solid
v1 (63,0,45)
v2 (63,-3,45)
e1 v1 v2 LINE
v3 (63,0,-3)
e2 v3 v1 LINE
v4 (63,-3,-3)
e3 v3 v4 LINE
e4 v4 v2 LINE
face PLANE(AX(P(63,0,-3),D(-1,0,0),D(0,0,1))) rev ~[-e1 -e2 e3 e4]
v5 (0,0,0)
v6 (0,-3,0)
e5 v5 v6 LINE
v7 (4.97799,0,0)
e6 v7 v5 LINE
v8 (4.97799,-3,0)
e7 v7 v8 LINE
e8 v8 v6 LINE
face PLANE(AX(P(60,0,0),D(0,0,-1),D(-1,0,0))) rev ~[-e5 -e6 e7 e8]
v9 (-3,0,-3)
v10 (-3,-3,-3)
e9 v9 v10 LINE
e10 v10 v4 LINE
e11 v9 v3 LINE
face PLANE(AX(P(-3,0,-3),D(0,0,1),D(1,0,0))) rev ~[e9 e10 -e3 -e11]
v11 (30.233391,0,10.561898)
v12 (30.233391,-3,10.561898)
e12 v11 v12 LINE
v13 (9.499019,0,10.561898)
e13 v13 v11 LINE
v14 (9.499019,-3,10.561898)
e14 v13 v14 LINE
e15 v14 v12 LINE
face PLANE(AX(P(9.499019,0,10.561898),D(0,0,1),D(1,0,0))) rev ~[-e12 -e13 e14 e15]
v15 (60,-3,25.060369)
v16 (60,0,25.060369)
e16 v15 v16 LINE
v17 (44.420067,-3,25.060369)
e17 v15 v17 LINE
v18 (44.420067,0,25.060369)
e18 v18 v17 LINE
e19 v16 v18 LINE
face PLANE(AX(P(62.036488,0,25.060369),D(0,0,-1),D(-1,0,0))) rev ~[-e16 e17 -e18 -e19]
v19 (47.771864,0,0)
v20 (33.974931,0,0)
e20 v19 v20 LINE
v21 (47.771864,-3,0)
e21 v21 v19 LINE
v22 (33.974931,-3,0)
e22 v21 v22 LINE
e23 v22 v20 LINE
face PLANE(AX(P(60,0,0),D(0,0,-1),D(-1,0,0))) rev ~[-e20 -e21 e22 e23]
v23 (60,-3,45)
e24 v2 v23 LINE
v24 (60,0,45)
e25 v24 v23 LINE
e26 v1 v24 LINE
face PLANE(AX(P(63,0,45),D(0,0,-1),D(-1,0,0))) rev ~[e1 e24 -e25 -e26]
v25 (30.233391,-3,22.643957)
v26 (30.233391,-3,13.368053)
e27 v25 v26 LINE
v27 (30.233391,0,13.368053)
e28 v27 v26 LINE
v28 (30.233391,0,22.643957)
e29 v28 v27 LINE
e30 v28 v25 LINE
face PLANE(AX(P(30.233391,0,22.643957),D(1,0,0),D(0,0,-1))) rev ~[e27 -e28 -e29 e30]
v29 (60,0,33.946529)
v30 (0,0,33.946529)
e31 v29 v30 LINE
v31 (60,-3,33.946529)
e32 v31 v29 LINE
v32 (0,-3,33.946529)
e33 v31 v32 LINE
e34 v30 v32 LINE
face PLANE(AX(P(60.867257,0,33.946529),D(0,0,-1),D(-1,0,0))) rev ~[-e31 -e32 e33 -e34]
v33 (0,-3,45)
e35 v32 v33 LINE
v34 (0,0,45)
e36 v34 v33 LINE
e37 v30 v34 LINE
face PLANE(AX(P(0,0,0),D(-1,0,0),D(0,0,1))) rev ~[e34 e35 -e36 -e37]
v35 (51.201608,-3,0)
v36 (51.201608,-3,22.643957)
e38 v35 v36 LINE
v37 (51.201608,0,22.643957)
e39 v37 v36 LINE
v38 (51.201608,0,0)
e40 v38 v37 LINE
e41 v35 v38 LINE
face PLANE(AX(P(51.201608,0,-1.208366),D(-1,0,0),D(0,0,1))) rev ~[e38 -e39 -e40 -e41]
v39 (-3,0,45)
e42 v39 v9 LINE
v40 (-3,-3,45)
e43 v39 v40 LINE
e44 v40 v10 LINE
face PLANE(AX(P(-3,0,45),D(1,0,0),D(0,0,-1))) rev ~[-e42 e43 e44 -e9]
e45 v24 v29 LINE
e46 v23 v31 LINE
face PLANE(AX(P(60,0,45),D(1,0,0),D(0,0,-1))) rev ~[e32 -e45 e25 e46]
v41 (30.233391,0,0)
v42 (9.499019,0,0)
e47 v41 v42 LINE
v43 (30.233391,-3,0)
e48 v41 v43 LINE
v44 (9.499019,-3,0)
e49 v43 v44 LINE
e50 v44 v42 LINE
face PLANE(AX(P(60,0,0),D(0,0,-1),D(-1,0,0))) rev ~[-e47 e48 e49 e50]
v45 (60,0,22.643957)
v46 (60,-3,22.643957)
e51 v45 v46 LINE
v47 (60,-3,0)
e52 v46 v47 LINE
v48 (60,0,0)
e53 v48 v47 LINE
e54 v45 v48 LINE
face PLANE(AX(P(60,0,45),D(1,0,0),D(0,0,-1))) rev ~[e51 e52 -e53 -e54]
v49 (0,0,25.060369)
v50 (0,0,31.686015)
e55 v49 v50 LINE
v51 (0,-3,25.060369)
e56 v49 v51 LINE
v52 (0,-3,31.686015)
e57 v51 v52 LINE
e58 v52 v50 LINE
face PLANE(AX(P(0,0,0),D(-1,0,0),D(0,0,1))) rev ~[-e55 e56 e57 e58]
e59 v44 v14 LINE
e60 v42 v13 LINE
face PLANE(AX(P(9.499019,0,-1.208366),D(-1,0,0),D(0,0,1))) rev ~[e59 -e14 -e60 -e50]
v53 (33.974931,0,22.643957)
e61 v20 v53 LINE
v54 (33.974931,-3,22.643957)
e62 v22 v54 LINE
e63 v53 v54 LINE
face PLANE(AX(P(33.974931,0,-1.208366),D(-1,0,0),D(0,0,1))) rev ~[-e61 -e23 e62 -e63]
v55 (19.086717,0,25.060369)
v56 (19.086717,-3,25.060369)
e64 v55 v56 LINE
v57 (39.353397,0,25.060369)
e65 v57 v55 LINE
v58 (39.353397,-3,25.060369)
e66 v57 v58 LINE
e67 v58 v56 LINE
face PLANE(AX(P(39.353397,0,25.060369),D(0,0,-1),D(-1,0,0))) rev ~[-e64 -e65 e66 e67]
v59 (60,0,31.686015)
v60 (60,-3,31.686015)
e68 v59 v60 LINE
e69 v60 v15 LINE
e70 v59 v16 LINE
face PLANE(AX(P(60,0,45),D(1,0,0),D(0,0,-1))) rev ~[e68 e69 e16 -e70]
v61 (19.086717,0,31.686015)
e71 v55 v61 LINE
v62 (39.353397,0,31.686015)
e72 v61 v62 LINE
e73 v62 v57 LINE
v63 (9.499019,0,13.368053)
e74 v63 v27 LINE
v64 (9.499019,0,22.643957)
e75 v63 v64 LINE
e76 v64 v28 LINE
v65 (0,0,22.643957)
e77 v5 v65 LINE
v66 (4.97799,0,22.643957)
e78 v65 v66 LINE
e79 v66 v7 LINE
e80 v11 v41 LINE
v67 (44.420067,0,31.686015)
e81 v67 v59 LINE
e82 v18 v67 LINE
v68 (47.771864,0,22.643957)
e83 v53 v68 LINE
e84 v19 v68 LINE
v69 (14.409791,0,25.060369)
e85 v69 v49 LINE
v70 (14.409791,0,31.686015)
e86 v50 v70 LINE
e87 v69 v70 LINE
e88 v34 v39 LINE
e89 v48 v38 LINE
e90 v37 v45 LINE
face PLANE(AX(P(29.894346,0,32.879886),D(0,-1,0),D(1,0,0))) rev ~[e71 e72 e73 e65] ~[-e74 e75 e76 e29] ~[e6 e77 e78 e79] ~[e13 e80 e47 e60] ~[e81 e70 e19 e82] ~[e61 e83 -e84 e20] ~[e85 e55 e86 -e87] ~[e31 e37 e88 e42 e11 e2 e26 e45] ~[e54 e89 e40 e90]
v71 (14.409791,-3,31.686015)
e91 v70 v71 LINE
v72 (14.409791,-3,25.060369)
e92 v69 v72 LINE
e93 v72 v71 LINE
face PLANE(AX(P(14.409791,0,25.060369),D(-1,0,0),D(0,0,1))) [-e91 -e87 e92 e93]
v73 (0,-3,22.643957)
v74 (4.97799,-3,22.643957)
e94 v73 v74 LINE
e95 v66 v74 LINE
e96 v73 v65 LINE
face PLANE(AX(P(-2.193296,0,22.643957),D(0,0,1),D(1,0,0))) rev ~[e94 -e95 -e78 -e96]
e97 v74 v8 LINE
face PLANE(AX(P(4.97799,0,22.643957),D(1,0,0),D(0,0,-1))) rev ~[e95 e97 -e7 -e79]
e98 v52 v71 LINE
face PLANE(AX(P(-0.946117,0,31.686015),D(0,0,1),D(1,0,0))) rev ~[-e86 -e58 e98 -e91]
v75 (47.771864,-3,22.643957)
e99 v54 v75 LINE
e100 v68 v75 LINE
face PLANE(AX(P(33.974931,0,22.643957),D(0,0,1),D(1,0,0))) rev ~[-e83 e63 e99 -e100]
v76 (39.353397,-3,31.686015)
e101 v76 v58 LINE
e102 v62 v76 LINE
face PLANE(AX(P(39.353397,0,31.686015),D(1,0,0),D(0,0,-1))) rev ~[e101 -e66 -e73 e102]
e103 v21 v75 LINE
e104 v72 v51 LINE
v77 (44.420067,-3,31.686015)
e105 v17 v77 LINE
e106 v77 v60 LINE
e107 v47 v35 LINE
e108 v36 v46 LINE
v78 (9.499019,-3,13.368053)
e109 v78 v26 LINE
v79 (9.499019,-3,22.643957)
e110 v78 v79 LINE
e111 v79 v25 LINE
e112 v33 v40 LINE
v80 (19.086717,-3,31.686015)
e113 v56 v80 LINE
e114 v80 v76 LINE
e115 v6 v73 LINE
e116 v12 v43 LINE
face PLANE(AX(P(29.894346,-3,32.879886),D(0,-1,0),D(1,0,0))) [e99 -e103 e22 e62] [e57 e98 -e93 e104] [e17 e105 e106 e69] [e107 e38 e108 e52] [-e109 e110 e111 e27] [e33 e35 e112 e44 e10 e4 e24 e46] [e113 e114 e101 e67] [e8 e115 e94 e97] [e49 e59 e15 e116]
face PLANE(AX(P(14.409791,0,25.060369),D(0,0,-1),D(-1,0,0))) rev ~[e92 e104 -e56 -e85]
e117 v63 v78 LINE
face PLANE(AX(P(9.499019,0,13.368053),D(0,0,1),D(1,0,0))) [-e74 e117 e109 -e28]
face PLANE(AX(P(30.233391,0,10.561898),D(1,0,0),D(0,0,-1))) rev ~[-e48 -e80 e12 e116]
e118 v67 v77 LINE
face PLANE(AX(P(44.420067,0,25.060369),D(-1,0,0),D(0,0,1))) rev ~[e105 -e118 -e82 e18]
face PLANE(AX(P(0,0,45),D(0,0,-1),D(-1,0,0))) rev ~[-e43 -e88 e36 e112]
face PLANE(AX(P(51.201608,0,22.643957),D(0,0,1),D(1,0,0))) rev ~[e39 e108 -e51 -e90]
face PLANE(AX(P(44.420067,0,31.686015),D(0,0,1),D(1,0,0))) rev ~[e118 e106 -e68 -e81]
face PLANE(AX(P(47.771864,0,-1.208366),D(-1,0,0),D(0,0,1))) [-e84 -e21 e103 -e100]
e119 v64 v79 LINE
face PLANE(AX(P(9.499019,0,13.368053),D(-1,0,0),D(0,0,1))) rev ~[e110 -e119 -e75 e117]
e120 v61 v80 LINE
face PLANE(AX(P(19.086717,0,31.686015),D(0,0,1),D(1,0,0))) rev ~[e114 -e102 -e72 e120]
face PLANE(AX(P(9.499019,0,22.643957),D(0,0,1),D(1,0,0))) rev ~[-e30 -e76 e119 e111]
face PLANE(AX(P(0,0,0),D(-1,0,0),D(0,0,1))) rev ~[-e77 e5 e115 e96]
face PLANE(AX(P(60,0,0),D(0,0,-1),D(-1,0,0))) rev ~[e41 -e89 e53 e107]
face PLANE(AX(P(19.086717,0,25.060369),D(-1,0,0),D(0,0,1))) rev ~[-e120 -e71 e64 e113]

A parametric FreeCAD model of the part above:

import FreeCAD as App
import Part
import Sketcher
Q = App.Units.Quantity

doc = App.newDocument("Part")
body = doc.addObject("PartDesign::Body", "Body")

# Sketch on XZ plane
sketch1 = body.newObject("Sketcher::SketchObject", "Sketch")
sketch1.AttachmentSupport = (doc.getObject("XZ_Plane"), [""])
sketch1.MapMode = "FlatFace"
sketch1.addGeometry([
    Part.LineSegment(App.Vector(60, 0, 0), App.Vector(0, 0, 0)),  # 0
    Part.LineSegment(App.Vector(0, 0, 0), App.Vector(0, 45, 0)),  # 1
    Part.LineSegment(App.Vector(0, 45, 0), App.Vector(-3, 45, 0)),  # 2
    Part.LineSegment(App.Vector(-3, 45, 0), App.Vector(-3, -3, 0)),  # 3
    Part.LineSegment(App.Vector(-3, -3, 0), App.Vector(63, -3, 0)),  # 4
    Part.LineSegment(App.Vector(63, -3, 0), App.Vector(63, 45, 0)),  # 5
    Part.LineSegment(App.Vector(63, 45, 0), App.Vector(60, 45, 0)),  # 6
    Part.LineSegment(App.Vector(60, 45, 0), App.Vector(60, 0, 0)),  # 7
], False)
sketch1.addConstraint([
    Sketcher.Constraint("Coincident", 0, 2, 1, 1),
    Sketcher.Constraint("Coincident", 1, 2, 2, 1),
    Sketcher.Constraint("Coincident", 2, 2, 3, 1),
    Sketcher.Constraint("Coincident", 3, 2, 4, 1),
    Sketcher.Constraint("Coincident", 4, 2, 5, 1),
    Sketcher.Constraint("Coincident", 5, 2, 6, 1),
    Sketcher.Constraint("Coincident", 6, 2, 7, 1),
    Sketcher.Constraint("Coincident", 7, 2, 0, 1),
    Sketcher.Constraint("Horizontal", 0),
    Sketcher.Constraint("Vertical", 1),
    Sketcher.Constraint("Horizontal", 2),
    Sketcher.Constraint("Vertical", 3),
    Sketcher.Constraint("Horizontal", 4),
    Sketcher.Constraint("Vertical", 5),
    Sketcher.Constraint("Horizontal", 6),
    Sketcher.Constraint("Vertical", 7),
    Sketcher.Constraint("Coincident", 0, 2, -1, 1),
    Sketcher.Constraint("Horizontal", 2, 2, 5, 2),
    Sketcher.Constraint("Equal", 2, 6),
    Sketcher.Constraint("DistanceX", 0, 2, 0, 1, Q("60 mm")),
    Sketcher.Constraint("DistanceX", 2, 2, 2, 1, Q("3 mm")),
    Sketcher.Constraint("DistanceY", 1, 1, 1, 2, Q("45 mm")),
    Sketcher.Constraint("DistanceY", 3, 2, 3, 1, Q("48 mm")),
])
pad1 = body.newObject("PartDesign::Pad", "Pad")
pad1.Profile = sketch1
pad1.Length = 60

# Sketch on XZ plane
sketch2 = body.newObject("Sketcher::SketchObject", "Sketch001")
sketch2.AttachmentSupport = (doc.getObject("XZ_Plane"), [""])
sketch2.MapMode = "FlatFace"
sketch2.addGeometry([
    Part.LineSegment(App.Vector(9.499019, 10.561898, 0), App.Vector(30.233391, 10.561898, 0)),  # 0
    Part.LineSegment(App.Vector(30.233391, 10.561898, 0), App.Vector(30.233391, -1.208366, 0)),  # 1
    Part.LineSegment(App.Vector(30.233391, -1.208366, 0), App.Vector(33.974931, -1.208366, 0)),  # 2
    Part.LineSegment(App.Vector(33.974931, -1.208366, 0), App.Vector(33.974931, 22.643957, 0)),  # 3
    Part.LineSegment(App.Vector(33.974931, 22.643957, 0), App.Vector(47.771864, 22.643957, 0)),  # 4
    Part.LineSegment(App.Vector(47.771864, 22.643957, 0), App.Vector(47.771864, -1.208366, 0)),  # 5
    Part.LineSegment(App.Vector(47.771864, -1.208366, 0), App.Vector(51.201608, -1.208366, 0)),  # 6
    Part.LineSegment(App.Vector(51.201608, -1.208366, 0), App.Vector(51.201608, 22.643957, 0)),  # 7
    Part.LineSegment(App.Vector(51.201608, 22.643957, 0), App.Vector(62.036488, 22.643957, 0)),  # 8
    Part.LineSegment(App.Vector(62.036488, 22.643957, 0), App.Vector(62.036488, 25.060369, 0)),  # 9
    Part.LineSegment(App.Vector(62.036488, 25.060369, 0), App.Vector(44.420067, 25.060369, 0)),  # 10
    Part.LineSegment(App.Vector(44.420067, 25.060369, 0), App.Vector(44.420067, 31.686015, 0)),  # 11
    Part.LineSegment(App.Vector(44.420067, 31.686015, 0), App.Vector(60.867257, 31.686015, 0)),  # 12
    Part.LineSegment(App.Vector(60.867257, 31.686015, 0), App.Vector(60.867257, 33.946529, 0)),  # 13
    Part.LineSegment(App.Vector(60.867257, 33.946529, 0), App.Vector(-0.946117, 33.946529, 0)),  # 14
    Part.LineSegment(App.Vector(-0.946117, 33.946529, 0), App.Vector(-0.946117, 31.686015, 0)),  # 15
    Part.LineSegment(App.Vector(-0.946117, 31.686015, 0), App.Vector(14.409791, 31.686015, 0)),  # 16
    Part.LineSegment(App.Vector(14.409791, 31.686015, 0), App.Vector(14.409791, 25.060369, 0)),  # 17
    Part.LineSegment(App.Vector(14.409791, 25.060369, 0), App.Vector(-2.193296, 25.060369, 0)),  # 18
    Part.LineSegment(App.Vector(-2.193296, 25.060369, 0), App.Vector(-2.193296, 22.643957, 0)),  # 19
    Part.LineSegment(App.Vector(-2.193296, 22.643957, 0), App.Vector(4.97799, 22.643957, 0)),  # 20
    Part.LineSegment(App.Vector(4.97799, 22.643957, 0), App.Vector(4.97799, -1.208366, 0)),  # 21
    Part.LineSegment(App.Vector(4.97799, -1.208366, 0), App.Vector(9.499019, -1.208366, 0)),  # 22
    Part.LineSegment(App.Vector(9.499019, -1.208366, 0), App.Vector(9.499019, 10.561898, 0)),  # 23
    Part.LineSegment(App.Vector(30.233391, 22.643957, 0), App.Vector(30.233391, 13.368053, 0)),  # 24
    Part.LineSegment(App.Vector(30.233391, 13.368053, 0), App.Vector(9.499019, 13.368053, 0)),  # 25
    Part.LineSegment(App.Vector(9.499019, 13.368053, 0), App.Vector(9.499019, 22.643957, 0)),  # 26
    Part.LineSegment(App.Vector(9.499019, 22.643957, 0), App.Vector(30.233391, 22.643957, 0)),  # 27
    Part.LineSegment(App.Vector(39.353397, 25.060369, 0), App.Vector(19.086717, 25.060369, 0)),  # 28
    Part.LineSegment(App.Vector(19.086717, 25.060369, 0), App.Vector(19.086717, 31.686015, 0)),  # 29
    Part.LineSegment(App.Vector(19.086717, 31.686015, 0), App.Vector(39.353397, 31.686015, 0)),  # 30
    Part.LineSegment(App.Vector(39.353397, 31.686015, 0), App.Vector(39.353397, 25.060369, 0)),  # 31
], False)
sketch2.addConstraint([
    Sketcher.Constraint("Coincident", 0, 2, 1, 1),
    Sketcher.Constraint("Coincident", 1, 2, 2, 1),
    Sketcher.Constraint("Coincident", 2, 2, 3, 1),
    Sketcher.Constraint("Coincident", 3, 2, 4, 1),
    Sketcher.Constraint("Coincident", 4, 2, 5, 1),
    Sketcher.Constraint("Coincident", 5, 2, 6, 1),
    Sketcher.Constraint("Coincident", 6, 2, 7, 1),
    Sketcher.Constraint("Coincident", 7, 2, 8, 1),
    Sketcher.Constraint("Coincident", 8, 2, 9, 1),
    Sketcher.Constraint("Coincident", 9, 2, 10, 1),
    Sketcher.Constraint("Coincident", 10, 2, 11, 1),
    Sketcher.Constraint("Coincident", 11, 2, 12, 1),
    Sketcher.Constraint("Coincident", 12, 2, 13, 1),
    Sketcher.Constraint("Coincident", 13, 2, 14, 1),
    Sketcher.Constraint("Coincident", 14, 2, 15, 1),
    Sketcher.Constraint("Coincident", 15, 2, 16, 1),
    Sketcher.Constraint("Coincident", 16, 2, 17, 1),
    Sketcher.Constraint("Coincident", 17, 2, 18, 1),
    Sketcher.Constraint("Coincident", 18, 2, 19, 1),
    Sketcher.Constraint("Coincident", 19, 2, 20, 1),
    Sketcher.Constraint("Coincident", 20, 2, 21, 1),
    Sketcher.Constraint("Coincident", 21, 2, 22, 1),
    Sketcher.Constraint("Coincident", 22, 2, 23, 1),
    Sketcher.Constraint("Coincident", 23, 2, 0, 1),
    Sketcher.Constraint("Coincident", 24, 2, 25, 1),
    Sketcher.Constraint("Coincident", 25, 2, 26, 1),
    Sketcher.Constraint("Coincident", 26, 2, 27, 1),
    Sketcher.Constraint("Coincident", 27, 2, 24, 1),
    Sketcher.Constraint("Coincident", 28, 2, 29, 1),
    Sketcher.Constraint("Coincident", 29, 2, 30, 1),
    Sketcher.Constraint("Coincident", 30, 2, 31, 1),
    Sketcher.Constraint("Coincident", 31, 2, 28, 1),
    Sketcher.Constraint("Horizontal", 0),
    Sketcher.Constraint("Vertical", 1),
    Sketcher.Constraint("Horizontal", 2),
    Sketcher.Constraint("Vertical", 3),
    Sketcher.Constraint("Horizontal", 4),
    Sketcher.Constraint("Vertical", 5),
    Sketcher.Constraint("Horizontal", 6),
    Sketcher.Constraint("Vertical", 7),
    Sketcher.Constraint("Horizontal", 8),
    Sketcher.Constraint("Vertical", 9),
    Sketcher.Constraint("Horizontal", 10),
    Sketcher.Constraint("Vertical", 11),
    Sketcher.Constraint("Horizontal", 12),
    Sketcher.Constraint("Vertical", 13),
    Sketcher.Constraint("Horizontal", 14),
    Sketcher.Constraint("Vertical", 15),
    Sketcher.Constraint("Horizontal", 16),
    Sketcher.Constraint("Vertical", 17),
    Sketcher.Constraint("Horizontal", 18),
    Sketcher.Constraint("Vertical", 19),
    Sketcher.Constraint("Horizontal", 20),
    Sketcher.Constraint("Vertical", 21),
    Sketcher.Constraint("Horizontal", 22),
    Sketcher.Constraint("Vertical", 23),
    Sketcher.Constraint("Vertical", 24),
    Sketcher.Constraint("Horizontal", 25),
    Sketcher.Constraint("Vertical", 26),
    Sketcher.Constraint("Horizontal", 27),
    Sketcher.Constraint("Horizontal", 28),
    Sketcher.Constraint("Vertical", 29),
    Sketcher.Constraint("Horizontal", 30),
    Sketcher.Constraint("Vertical", 31),
    Sketcher.Constraint("Horizontal", 2, 2, 5, 2),
    Sketcher.Constraint("Horizontal", 4, 2, 7, 2),
    Sketcher.Constraint("Horizontal", 12, 2, 15, 2),
    Sketcher.Constraint("Horizontal", 10, 2, 17, 2),
    Sketcher.Constraint("Horizontal", 8, 2, 19, 2),
    Sketcher.Constraint("Horizontal", 6, 2, 21, 2),
    Sketcher.Constraint("Horizontal", 20, 2, 26, 2),
    Sketcher.Constraint("Horizontal", 18, 2, 28, 2),
    Sketcher.Constraint("Horizontal", 16, 2, 29, 2),
    Sketcher.Constraint("Vertical", 1, 2, 24, 2),
    Sketcher.Constraint("Vertical", 23, 2, 25, 2),
    Sketcher.Constraint("DistanceX", 0, 1, 0, 2, Q("20.734372 mm")),
    Sketcher.Constraint("DistanceX", 2, 1, 2, 2, Q("3.74154 mm")),
    Sketcher.Constraint("DistanceX", 8, 1, 8, 2, Q("10.83488 mm")),
    Sketcher.Constraint("DistanceX", 10, 2, 10, 1, Q("17.616421 mm")),
    Sketcher.Constraint("DistanceX", 12, 1, 12, 2, Q("16.44719 mm")),
    Sketcher.Constraint("DistanceX", 22, 1, 22, 2, Q("4.521029 mm")),
    Sketcher.Constraint("DistanceX", 28, 2, 28, 1, Q("20.26668 mm")),
    Sketcher.Constraint("DistanceY", 9, 1, 9, 2, Q("2.416411 mm")),
    Sketcher.Constraint("DistanceY", -1, 1, 0, 2, Q("10.561898 mm")),
    Sketcher.Constraint("DistanceX", 16, 2, 0, 2, Q("15.8236 mm")),
    Sketcher.Constraint("DistanceX", 4, 1, 4, 2, Q("13.796933 mm")),
    Sketcher.Constraint("DistanceX", 6, 1, 6, 2, Q("3.429744 mm")),
    Sketcher.Constraint("DistanceX", 14, 2, 14, 1, Q("61.813375 mm")),
    Sketcher.Constraint("DistanceX", 18, 2, 18, 1, Q("16.603087 mm")),
    Sketcher.Constraint("DistanceY", 1, 2, 1, 1, Q("11.770264 mm")),
    Sketcher.Constraint("DistanceY", 3, 1, 3, 2, Q("23.852323 mm")),
    Sketcher.Constraint("DistanceY", 11, 1, 11, 2, Q("6.625647 mm")),
    Sketcher.Constraint("DistanceY", 13, 1, 13, 2, Q("2.260514 mm")),
    Sketcher.Constraint("DistanceY", 24, 2, 24, 1, Q("9.275904 mm")),
    Sketcher.Constraint("DistanceX", -1, 1, 0, 2, Q("30.233391 mm")),
    Sketcher.Constraint("DistanceX", 30, 2, 11, 2, Q("5.06667 mm")),
])
pad2 = body.newObject("PartDesign::Pad", "Pad001")
pad2.Profile = sketch2
pad2.Length = 3

# Sketch on XZ plane
sketch3 = body.newObject("Sketcher::SketchObject", "Sketch002")
sketch3.AttachmentSupport = (doc.getObject("XZ_Plane"), [""])
sketch3.MapMode = "FlatFace"
sketch3.AttachmentOffset = App.Placement(App.Vector(0, 0, 60), App.Rotation())
sketch3.addGeometry([
    Part.LineSegment(App.Vector(-19.259088, 57.998568, 0), App.Vector(-19.259088, -16.432572, 0)),
    Part.LineSegment(App.Vector(-19.259088, -16.432572, 0), App.Vector(86.854108, -16.432572, 0)),
    Part.LineSegment(App.Vector(86.854108, -16.432572, 0), App.Vector(86.854108, 57.998568, 0)),
    Part.LineSegment(App.Vector(86.854108, 57.998568, 0), App.Vector(-19.259088, 57.998568, 0)),
], False)
sketch3.addConstraint([
    Sketcher.Constraint("Coincident", 0, 2, 1, 1),
    Sketcher.Constraint("Coincident", 1, 2, 2, 1),
    Sketcher.Constraint("Coincident", 2, 2, 3, 1),
    Sketcher.Constraint("Coincident", 3, 2, 0, 1),
    Sketcher.Constraint("Vertical", 0),
    Sketcher.Constraint("Horizontal", 1),
    Sketcher.Constraint("Vertical", 2),
    Sketcher.Constraint("Horizontal", 3),
    Sketcher.Constraint("DistanceY", 0, 2, 0, 1, Q("74.43114 mm")),
    Sketcher.Constraint("DistanceX", 1, 1, 1, 2, Q("106.113195 mm")),
    Sketcher.Constraint("DistanceX", 0, 2, -1, 1, Q("19.259088 mm")),
    Sketcher.Constraint("DistanceY", 0, 2, -1, 1, Q("16.432572 mm")),
])
pocket1 = body.newObject("PartDesign::Pocket", "Pocket")
pocket1.Profile = sketch3
pocket1.Length = 57

doc.recompute()
